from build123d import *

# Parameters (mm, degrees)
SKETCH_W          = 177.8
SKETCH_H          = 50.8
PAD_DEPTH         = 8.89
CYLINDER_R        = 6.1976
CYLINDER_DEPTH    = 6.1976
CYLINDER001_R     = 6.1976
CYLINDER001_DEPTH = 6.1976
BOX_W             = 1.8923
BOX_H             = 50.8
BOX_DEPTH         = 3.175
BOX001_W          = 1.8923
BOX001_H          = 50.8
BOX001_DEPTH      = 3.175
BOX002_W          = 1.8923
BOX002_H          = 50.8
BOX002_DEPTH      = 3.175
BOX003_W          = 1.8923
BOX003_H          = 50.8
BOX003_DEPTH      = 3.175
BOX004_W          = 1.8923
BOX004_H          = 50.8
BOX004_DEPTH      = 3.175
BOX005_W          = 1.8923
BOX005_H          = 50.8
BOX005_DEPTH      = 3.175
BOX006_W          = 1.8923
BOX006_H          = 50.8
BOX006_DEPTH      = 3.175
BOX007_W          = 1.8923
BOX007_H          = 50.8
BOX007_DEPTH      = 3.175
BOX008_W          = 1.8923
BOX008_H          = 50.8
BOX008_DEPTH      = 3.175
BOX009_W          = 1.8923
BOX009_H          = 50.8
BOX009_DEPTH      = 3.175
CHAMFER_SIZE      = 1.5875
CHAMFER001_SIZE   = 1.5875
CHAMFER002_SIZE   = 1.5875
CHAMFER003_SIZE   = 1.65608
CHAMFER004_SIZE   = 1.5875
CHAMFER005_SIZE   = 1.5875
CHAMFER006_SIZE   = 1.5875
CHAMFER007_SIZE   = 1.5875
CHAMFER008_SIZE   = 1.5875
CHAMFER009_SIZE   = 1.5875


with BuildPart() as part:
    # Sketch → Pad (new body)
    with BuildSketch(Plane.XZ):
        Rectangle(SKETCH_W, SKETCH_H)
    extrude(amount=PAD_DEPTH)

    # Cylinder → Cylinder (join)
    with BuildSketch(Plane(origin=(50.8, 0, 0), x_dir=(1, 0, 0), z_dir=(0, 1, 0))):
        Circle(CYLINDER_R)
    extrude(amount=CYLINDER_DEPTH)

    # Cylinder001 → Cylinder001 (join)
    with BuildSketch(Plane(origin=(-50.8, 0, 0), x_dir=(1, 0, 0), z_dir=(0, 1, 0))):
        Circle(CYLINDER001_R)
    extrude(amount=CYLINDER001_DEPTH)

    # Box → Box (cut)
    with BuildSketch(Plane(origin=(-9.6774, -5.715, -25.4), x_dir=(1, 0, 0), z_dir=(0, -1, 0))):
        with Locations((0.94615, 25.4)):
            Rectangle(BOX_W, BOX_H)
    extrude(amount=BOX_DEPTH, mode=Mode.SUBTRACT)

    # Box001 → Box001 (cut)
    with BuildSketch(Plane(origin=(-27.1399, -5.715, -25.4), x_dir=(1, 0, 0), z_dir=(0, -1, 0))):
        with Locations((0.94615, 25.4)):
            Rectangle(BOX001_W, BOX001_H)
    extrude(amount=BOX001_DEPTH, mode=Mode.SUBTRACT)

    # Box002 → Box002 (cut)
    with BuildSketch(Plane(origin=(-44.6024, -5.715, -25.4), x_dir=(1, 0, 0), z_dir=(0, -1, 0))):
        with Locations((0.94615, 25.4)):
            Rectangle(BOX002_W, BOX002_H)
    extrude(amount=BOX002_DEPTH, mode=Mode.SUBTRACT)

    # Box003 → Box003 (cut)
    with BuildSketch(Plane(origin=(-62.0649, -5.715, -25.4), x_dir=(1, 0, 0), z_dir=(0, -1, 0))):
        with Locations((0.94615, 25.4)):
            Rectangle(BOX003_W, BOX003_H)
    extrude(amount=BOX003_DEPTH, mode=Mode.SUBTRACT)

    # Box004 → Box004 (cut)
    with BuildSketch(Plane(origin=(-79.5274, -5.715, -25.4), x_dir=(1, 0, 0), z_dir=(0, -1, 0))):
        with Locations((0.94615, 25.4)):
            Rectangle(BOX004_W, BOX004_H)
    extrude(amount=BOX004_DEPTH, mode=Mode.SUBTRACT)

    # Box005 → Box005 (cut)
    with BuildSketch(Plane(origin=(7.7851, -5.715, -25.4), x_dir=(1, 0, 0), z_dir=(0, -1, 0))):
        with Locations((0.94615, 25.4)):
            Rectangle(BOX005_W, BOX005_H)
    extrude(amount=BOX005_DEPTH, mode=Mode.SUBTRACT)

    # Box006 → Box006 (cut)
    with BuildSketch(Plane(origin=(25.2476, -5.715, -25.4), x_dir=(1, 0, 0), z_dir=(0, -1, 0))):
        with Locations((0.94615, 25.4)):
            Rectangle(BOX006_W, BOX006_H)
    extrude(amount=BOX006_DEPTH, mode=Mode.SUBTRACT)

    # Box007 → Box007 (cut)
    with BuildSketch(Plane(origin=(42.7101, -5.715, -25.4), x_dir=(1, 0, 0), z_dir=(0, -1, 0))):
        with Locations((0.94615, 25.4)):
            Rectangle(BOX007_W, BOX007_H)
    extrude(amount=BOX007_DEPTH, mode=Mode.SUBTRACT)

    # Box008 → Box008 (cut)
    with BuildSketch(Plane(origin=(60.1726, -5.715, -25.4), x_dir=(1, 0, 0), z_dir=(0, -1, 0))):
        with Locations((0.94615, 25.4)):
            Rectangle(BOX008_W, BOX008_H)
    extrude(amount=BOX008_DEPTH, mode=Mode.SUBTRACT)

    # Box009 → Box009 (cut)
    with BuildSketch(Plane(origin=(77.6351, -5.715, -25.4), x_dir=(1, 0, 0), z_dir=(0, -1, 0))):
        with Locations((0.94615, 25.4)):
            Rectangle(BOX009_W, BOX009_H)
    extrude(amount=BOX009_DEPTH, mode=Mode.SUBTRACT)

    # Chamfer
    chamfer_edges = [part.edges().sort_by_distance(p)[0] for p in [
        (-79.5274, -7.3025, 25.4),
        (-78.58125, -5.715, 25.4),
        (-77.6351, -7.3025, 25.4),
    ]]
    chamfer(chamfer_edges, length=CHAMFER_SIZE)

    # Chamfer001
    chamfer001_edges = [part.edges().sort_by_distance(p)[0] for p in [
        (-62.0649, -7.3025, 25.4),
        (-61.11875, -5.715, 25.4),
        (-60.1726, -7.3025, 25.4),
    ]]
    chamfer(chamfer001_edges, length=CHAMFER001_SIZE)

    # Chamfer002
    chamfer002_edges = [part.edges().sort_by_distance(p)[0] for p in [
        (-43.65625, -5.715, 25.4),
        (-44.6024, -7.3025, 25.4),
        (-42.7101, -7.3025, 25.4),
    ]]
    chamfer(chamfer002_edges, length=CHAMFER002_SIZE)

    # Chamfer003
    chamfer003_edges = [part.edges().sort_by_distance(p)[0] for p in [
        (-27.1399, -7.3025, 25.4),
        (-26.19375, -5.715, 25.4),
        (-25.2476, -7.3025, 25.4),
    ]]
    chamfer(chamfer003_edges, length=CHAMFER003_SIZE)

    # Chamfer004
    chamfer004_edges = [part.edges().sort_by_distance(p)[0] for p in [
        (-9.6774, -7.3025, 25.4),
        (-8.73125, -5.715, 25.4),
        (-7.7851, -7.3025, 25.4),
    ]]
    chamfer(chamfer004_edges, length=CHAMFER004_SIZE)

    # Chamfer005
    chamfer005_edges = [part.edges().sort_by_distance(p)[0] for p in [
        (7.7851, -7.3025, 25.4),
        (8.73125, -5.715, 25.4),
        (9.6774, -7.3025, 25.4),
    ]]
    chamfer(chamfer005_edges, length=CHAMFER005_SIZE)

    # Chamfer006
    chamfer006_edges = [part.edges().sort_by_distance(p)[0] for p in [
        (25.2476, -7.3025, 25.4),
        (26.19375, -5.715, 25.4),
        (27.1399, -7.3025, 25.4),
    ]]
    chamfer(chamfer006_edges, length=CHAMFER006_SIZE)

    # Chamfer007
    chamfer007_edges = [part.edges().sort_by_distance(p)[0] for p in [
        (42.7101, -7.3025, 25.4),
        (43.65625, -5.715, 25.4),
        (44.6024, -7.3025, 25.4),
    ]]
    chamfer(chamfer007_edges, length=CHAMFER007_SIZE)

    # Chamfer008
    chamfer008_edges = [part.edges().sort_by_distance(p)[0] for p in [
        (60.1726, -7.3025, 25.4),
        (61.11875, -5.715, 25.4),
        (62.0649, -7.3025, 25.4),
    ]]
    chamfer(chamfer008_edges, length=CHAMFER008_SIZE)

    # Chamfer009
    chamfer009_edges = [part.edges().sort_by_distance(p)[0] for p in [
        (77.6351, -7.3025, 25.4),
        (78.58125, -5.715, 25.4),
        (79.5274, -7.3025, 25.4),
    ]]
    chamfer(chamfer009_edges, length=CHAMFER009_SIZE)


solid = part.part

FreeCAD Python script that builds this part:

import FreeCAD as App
import Part
import Sketcher
from FreeCAD import Vector
Q = App.Units.Quantity


def edges_at(feature, points):
    """Names of the edges that pass closest to the given points."""
    edges = feature.Shape.Edges
    near = lambda p: min(range(len(edges)), key=lambda i: edges[i].distToShape(Part.Vertex(*p))[0])
    return sorted({f"Edge{near(p) + 1}" for p in points})


def add_polygon(sketch, points):
    """Adds a closed chain of lines whose ends are joined by coincident constraints."""
    first, n = sketch.GeometryCount, len(points)
    for a, b in zip(points, points[1:] + points[:1]):
        sketch.addGeometry(Part.LineSegment(App.Vector(*a, 0), App.Vector(*b, 0)), False)
    for i in range(n):
        sketch.addConstraint(Sketcher.Constraint("Coincident", first + i, 2, first + (i + 1) % n, 1))

doc = App.newDocument("Part")
body = doc.addObject("PartDesign::Body", "Body")

sketch1 = body.newObject("Sketcher::SketchObject", "Sketch")
sketch1.AttachmentSupport = (doc.getObject("XZ_Plane"), [""])
sketch1.MapMode = "FlatFace"
add_polygon(sketch1, [(-88.9, 25.4), (-88.9, -25.4), (88.9, -25.4), (88.9, 25.4)])
sketch1.addConstraint(Sketcher.Constraint("Vertical", 0))
sketch1.addConstraint(Sketcher.Constraint("Horizontal", 1))
sketch1.addConstraint(Sketcher.Constraint("Vertical", 2))
sketch1.addConstraint(Sketcher.Constraint("Horizontal", 3))
sketch1.addConstraint(Sketcher.Constraint("Symmetric", 0, 2, 2, 2, -1, 1))
sketch1.addConstraint(Sketcher.Constraint("DistanceX", 1, 1, 1, 2, Q("7 in")))
sketch1.addConstraint(Sketcher.Constraint("DistanceY", 0, 2, 0, 1, Q("2 in")))
pad1 = body.newObject("PartDesign::Pad", "Pad")
pad1.Profile = sketch1
pad1.Length = Q("0.35 in")

sketch2 = body.newObject("Sketcher::SketchObject", "Sketch001")
sketch2.AttachmentSupport = (doc.getObject("XZ_Plane"), [""])
sketch2.MapMode = "FlatFace"
sketch2.addGeometry(Part.Circle(Vector(50.8, 0, 0), Vector(0, 0, 1), 6.1976), False)
sketch2.addConstraint(Sketcher.Constraint("PointOnObject", 0, 3, -1))
sketch2.addConstraint(Sketcher.Constraint("Diameter", 0, Q("0.488 in")))
sketch2.addConstraint(Sketcher.Constraint("DistanceX", -1, 1, 0, 3, Q("2 in")))
pad2 = body.newObject("PartDesign::Pad", "Pad001")
pad2.Profile = sketch2
pad2.Length = Q("0.244 in")
pad2.Reversed = True

sketch3 = body.newObject("Sketcher::SketchObject", "Sketch002")
sketch3.AttachmentSupport = (doc.getObject("XZ_Plane"), [""])
sketch3.MapMode = "FlatFace"
sketch3.addGeometry(Part.Circle(Vector(-50.8, 0, 0), Vector(0, 0, 1), 6.1976), False)
sketch3.addConstraint(Sketcher.Constraint("PointOnObject", 0, 3, -1))
sketch3.addConstraint(Sketcher.Constraint("Diameter", 0, Q("0.488 in")))
sketch3.addConstraint(Sketcher.Constraint("DistanceX", 0, 3, -1, 1, Q("2 in")))
pad3 = body.newObject("PartDesign::Pad", "Pad002")
pad3.Profile = sketch3
pad3.Length = Q("0.244 in")
pad3.Reversed = True

sketch4 = body.newObject("Sketcher::SketchObject", "Sketch003")
sketch4.AttachmentSupport = (doc.getObject("XZ_Plane"), [""])
sketch4.MapMode = "FlatFace"
sketch4.AttachmentOffset = App.Placement(Vector(0, 0, 0.225 * 25.4), App.Rotation())
add_polygon(sketch4, [(-9.6774, 25.4), (-9.6774, -25.4), (-7.7851, -25.4), (-7.7851, 25.4)])
sketch4.addConstraint(Sketcher.Constraint("Vertical", 0))
sketch4.addConstraint(Sketcher.Constraint("Horizontal", 1))
sketch4.addConstraint(Sketcher.Constraint("Vertical", 2))
sketch4.addConstraint(Sketcher.Constraint("Horizontal", 3))
sketch4.addConstraint(Sketcher.Constraint("DistanceY", 0, 2, 0, 1, Q("2 in")))
sketch4.addConstraint(Sketcher.Constraint("DistanceY", 0, 2, -1, 1, Q("1 in")))
sketch4.addConstraint(Sketcher.Constraint("DistanceX", 1, 1, 1, 2, Q("0.0745 in")))
sketch4.addConstraint(Sketcher.Constraint("DistanceX", 0, 2, -1, 1, Q("0.381 in")))
pocket1 = body.newObject("PartDesign::Pocket", "Pocket")
pocket1.Profile = sketch4
pocket1.Length = Q("0.125 in")
pocket1.Reversed = True

sketch5 = body.newObject("Sketcher::SketchObject", "Sketch004")
sketch5.AttachmentSupport = (doc.getObject("XZ_Plane"), [""])
sketch5.MapMode = "FlatFace"
sketch5.AttachmentOffset = App.Placement(Vector(0, 0, 0.225 * 25.4), App.Rotation())
add_polygon(sketch5, [(-27.1399, 25.4), (-27.1399, -25.4), (-25.2476, -25.4), (-25.2476, 25.4)])
sketch5.addConstraint(Sketcher.Constraint("Vertical", 0))
sketch5.addConstraint(Sketcher.Constraint("Horizontal", 1))
sketch5.addConstraint(Sketcher.Constraint("Vertical", 2))
sketch5.addConstraint(Sketcher.Constraint("Horizontal", 3))
sketch5.addConstraint(Sketcher.Constraint("DistanceY", 0, 2, 0, 1, Q("2 in")))
sketch5.addConstraint(Sketcher.Constraint("DistanceY", 0, 2, -1, 1, Q("1 in")))
sketch5.addConstraint(Sketcher.Constraint("DistanceX", 1, 1, 1, 2, Q("0.0745 in")))
sketch5.addConstraint(Sketcher.Constraint("DistanceX", 1, 2, -1, 1, Q("0.994 in")))
pocket2 = body.newObject("PartDesign::Pocket", "Pocket001")
pocket2.Profile = sketch5
pocket2.Length = Q("0.125 in")
pocket2.Reversed = True

sketch6 = body.newObject("Sketcher::SketchObject", "Sketch005")
sketch6.AttachmentSupport = (doc.getObject("XZ_Plane"), [""])
sketch6.MapMode = "FlatFace"
sketch6.AttachmentOffset = App.Placement(Vector(0, 0, 0.225 * 25.4), App.Rotation())
add_polygon(sketch6, [(-44.6024, 25.4), (-44.6024, -25.4), (-42.7101, -25.4), (-42.7101, 25.4)])
sketch6.addConstraint(Sketcher.Constraint("Vertical", 0))
sketch6.addConstraint(Sketcher.Constraint("Horizontal", 1))
sketch6.addConstraint(Sketcher.Constraint("Vertical", 2))
sketch6.addConstraint(Sketcher.Constraint("Horizontal", 3))
sketch6.addConstraint(Sketcher.Constraint("DistanceY", 0, 2, 0, 1, Q("2 in")))
sketch6.addConstraint(Sketcher.Constraint("DistanceY", 0, 2, -1, 1, Q("1 in")))
sketch6.addConstraint(Sketcher.Constraint("DistanceX", 1, 1, 1, 2, Q("0.0745 in")))
sketch6.addConstraint(Sketcher.Constraint("DistanceX", 0, 2, -1, 1, Q("1.756 in")))
pocket3 = body.newObject("PartDesign::Pocket", "Pocket002")
pocket3.Profile = sketch6
pocket3.Length = Q("0.125 in")
pocket3.Reversed = True

sketch7 = body.newObject("Sketcher::SketchObject", "Sketch006")
sketch7.AttachmentSupport = (doc.getObject("XZ_Plane"), [""])
sketch7.MapMode = "FlatFace"
sketch7.AttachmentOffset = App.Placement(Vector(0, 0, 0.225 * 25.4), App.Rotation())
add_polygon(sketch7, [(-62.0649, 25.4), (-62.0649, -25.4), (-60.1726, -25.4), (-60.1726, 25.4)])
sketch7.addConstraint(Sketcher.Constraint("Vertical", 0))
sketch7.addConstraint(Sketcher.Constraint("Horizontal", 1))
sketch7.addConstraint(Sketcher.Constraint("Vertical", 2))
sketch7.addConstraint(Sketcher.Constraint("Horizontal", 3))
sketch7.addConstraint(Sketcher.Constraint("DistanceY", 0, 2, 0, 1, Q("2 in")))
sketch7.addConstraint(Sketcher.Constraint("DistanceY", 0, 2, -1, 1, Q("1 in")))
sketch7.addConstraint(Sketcher.Constraint("DistanceX", 1, 1, 1, 2, Q("0.0745 in")))
sketch7.addConstraint(Sketcher.Constraint("DistanceX", 1, 2, -1, 1, Q("2.369 in")))
pocket4 = body.newObject("PartDesign::Pocket", "Pocket003")
pocket4.Profile = sketch7
pocket4.Length = Q("0.125 in")
pocket4.Reversed = True

sketch8 = body.newObject("Sketcher::SketchObject", "Sketch007")
sketch8.AttachmentSupport = (doc.getObject("XZ_Plane"), [""])
sketch8.MapMode = "FlatFace"
sketch8.AttachmentOffset = App.Placement(Vector(0, 0, 0.225 * 25.4), App.Rotation())
add_polygon(sketch8, [(-79.5274, 25.4), (-79.5274, -25.4), (-77.6351, -25.4), (-77.6351, 25.4)])
sketch8.addConstraint(Sketcher.Constraint("Vertical", 0))
sketch8.addConstraint(Sketcher.Constraint("Horizontal", 1))
sketch8.addConstraint(Sketcher.Constraint("Vertical", 2))
sketch8.addConstraint(Sketcher.Constraint("Horizontal", 3))
sketch8.addConstraint(Sketcher.Constraint("DistanceY", 0, 2, 0, 1, Q("2 in")))
sketch8.addConstraint(Sketcher.Constraint("DistanceY", 0, 2, -1, 1, Q("1 in")))
sketch8.addConstraint(Sketcher.Constraint("DistanceX", 1, 1, 1, 2, Q("0.0745 in")))
sketch8.addConstraint(Sketcher.Constraint("DistanceX", 0, 2, -1, 1, Q("3.131 in")))
pocket5 = body.newObject("PartDesign::Pocket", "Pocket004")
pocket5.Profile = sketch8
pocket5.Length = Q("0.125 in")
pocket5.Reversed = True

sketch9 = body.newObject("Sketcher::SketchObject", "Sketch008")
sketch9.AttachmentSupport = (doc.getObject("XZ_Plane"), [""])
sketch9.MapMode = "FlatFace"
sketch9.AttachmentOffset = App.Placement(Vector(0, 0, 0.225 * 25.4), App.Rotation())
add_polygon(sketch9, [(7.7851, 25.4), (7.7851, -25.4), (9.6774, -25.4), (9.6774, 25.4)])
sketch9.addConstraint(Sketcher.Constraint("Vertical", 0))
sketch9.addConstraint(Sketcher.Constraint("Horizontal", 1))
sketch9.addConstraint(Sketcher.Constraint("Vertical", 2))
sketch9.addConstraint(Sketcher.Constraint("Horizontal", 3))
sketch9.addConstraint(Sketcher.Constraint("DistanceY", 0, 2, 0, 1, Q("2 in")))
sketch9.addConstraint(Sketcher.Constraint("DistanceY", 0, 2, -1, 1, Q("1 in")))
sketch9.addConstraint(Sketcher.Constraint("DistanceX", 1, 1, 1, 2, Q("0.0745 in")))
sketch9.addConstraint(Sketcher.Constraint("DistanceX", -1, 1, 1, 2, Q("0.381 in")))
pocket6 = body.newObject("PartDesign::Pocket", "Pocket005")
pocket6.Profile = sketch9
pocket6.Length = Q("0.125 in")
pocket6.Reversed = True

sketch10 = body.newObject("Sketcher::SketchObject", "Sketch009")
sketch10.AttachmentSupport = (doc.getObject("XZ_Plane"), [""])
sketch10.MapMode = "FlatFace"
sketch10.AttachmentOffset = App.Placement(Vector(0, 0, 0.225 * 25.4), App.Rotation())
add_polygon(sketch10, [(25.2476, 25.4), (25.2476, -25.4), (27.1399, -25.4), (27.1399, 25.4)])
sketch10.addConstraint(Sketcher.Constraint("Vertical", 0))
sketch10.addConstraint(Sketcher.Constraint("Horizontal", 1))
sketch10.addConstraint(Sketcher.Constraint("Vertical", 2))
sketch10.addConstraint(Sketcher.Constraint("Horizontal", 3))
sketch10.addConstraint(Sketcher.Constraint("DistanceY", 0, 2, 0, 1, Q("2 in")))
sketch10.addConstraint(Sketcher.Constraint("DistanceY", 0, 2, -1, 1, Q("1 in")))
sketch10.addConstraint(Sketcher.Constraint("DistanceX", 1, 1, 1, 2, Q("0.0745 in")))
sketch10.addConstraint(Sketcher.Constraint("DistanceX", -1, 1, 0, 2, Q("0.994 in")))
pocket7 = body.newObject("PartDesign::Pocket", "Pocket006")
pocket7.Profile = sketch10
pocket7.Length = Q("0.125 in")
pocket7.Reversed = True

sketch11 = body.newObject("Sketcher::SketchObject", "Sketch010")
sketch11.AttachmentSupport = (doc.getObject("XZ_Plane"), [""])
sketch11.MapMode = "FlatFace"
sketch11.AttachmentOffset = App.Placement(Vector(0, 0, 0.225 * 25.4), App.Rotation())
add_polygon(sketch11, [(42.7101, 25.4), (42.7101, -25.4), (44.6024, -25.4), (44.6024, 25.4)])
sketch11.addConstraint(Sketcher.Constraint("Vertical", 0))
sketch11.addConstraint(Sketcher.Constraint("Horizontal", 1))
sketch11.addConstraint(Sketcher.Constraint("Vertical", 2))
sketch11.addConstraint(Sketcher.Constraint("Horizontal", 3))
sketch11.addConstraint(Sketcher.Constraint("DistanceY", 0, 2, 0, 1, Q("2 in")))
sketch11.addConstraint(Sketcher.Constraint("DistanceY", 0, 2, -1, 1, Q("1 in")))
sketch11.addConstraint(Sketcher.Constraint("DistanceX", 1, 1, 1, 2, Q("0.0745 in")))
sketch11.addConstraint(Sketcher.Constraint("DistanceX", -1, 1, 1, 2, Q("1.756 in")))
pocket8 = body.newObject("PartDesign::Pocket", "Pocket007")
pocket8.Profile = sketch11
pocket8.Length = Q("0.125 in")
pocket8.Reversed = True

sketch12 = body.newObject("Sketcher::SketchObject", "Sketch011")
sketch12.AttachmentSupport = (doc.getObject("XZ_Plane"), [""])
sketch12.MapMode = "FlatFace"
sketch12.AttachmentOffset = App.Placement(Vector(0, 0, 0.225 * 25.4), App.Rotation())
add_polygon(sketch12, [(60.1726, 25.4), (60.1726, -25.4), (62.0649, -25.4), (62.0649, 25.4)])
sketch12.addConstraint(Sketcher.Constraint("Vertical", 0))
sketch12.addConstraint(Sketcher.Constraint("Horizontal", 1))
sketch12.addConstraint(Sketcher.Constraint("Vertical", 2))
sketch12.addConstraint(Sketcher.Constraint("Horizontal", 3))
sketch12.addConstraint(Sketcher.Constraint("DistanceY", 0, 2, 0, 1, Q("2 in")))
sketch12.addConstraint(Sketcher.Constraint("DistanceY", 0, 2, -1, 1, Q("1 in")))
sketch12.addConstraint(Sketcher.Constraint("DistanceX", 1, 1, 1, 2, Q("0.0745 in")))
sketch12.addConstraint(Sketcher.Constraint("DistanceX", -1, 1, 0, 2, Q("2.369 in")))
pocket9 = body.newObject("PartDesign::Pocket", "Pocket008")
pocket9.Profile = sketch12
pocket9.Length = Q("0.125 in")
pocket9.Reversed = True

sketch13 = body.newObject("Sketcher::SketchObject", "Sketch012")
sketch13.AttachmentSupport = (doc.getObject("XZ_Plane"), [""])
sketch13.MapMode = "FlatFace"
sketch13.AttachmentOffset = App.Placement(Vector(0, 0, 0.225 * 25.4), App.Rotation())
add_polygon(sketch13, [(77.6351, 25.4), (77.6351, -25.4), (79.5274, -25.4), (79.5274, 25.4)])
sketch13.addConstraint(Sketcher.Constraint("Vertical", 0))
sketch13.addConstraint(Sketcher.Constraint("Horizontal", 1))
sketch13.addConstraint(Sketcher.Constraint("Vertical", 2))
sketch13.addConstraint(Sketcher.Constraint("Horizontal", 3))
sketch13.addConstraint(Sketcher.Constraint("DistanceY", 0, 2, 0, 1, Q("2 in")))
sketch13.addConstraint(Sketcher.Constraint("DistanceY", 0, 2, -1, 1, Q("1 in")))
sketch13.addConstraint(Sketcher.Constraint("DistanceX", 1, 1, 1, 2, Q("0.0745 in")))
sketch13.addConstraint(Sketcher.Constraint("DistanceX", -1, 1, 1, 2, Q("3.131 in")))
pocket10 = body.newObject("PartDesign::Pocket", "Pocket009")
pocket10.Profile = sketch13
pocket10.Length = Q("0.125 in")
pocket10.Reversed = True
doc.recompute()

chamfer = body.newObject("PartDesign::Chamfer", "Chamfer")
chamfer.Base = (pocket10, edges_at(pocket10, [(-79.527, -7.303, 25.4), (-78.581, -5.715, 25.4), (-77.635, -7.303, 25.4)]))
chamfer.Size = Q("0.0625 in")
doc.recompute()

chamfer2 = body.newObject("PartDesign::Chamfer", "Chamfer001")
chamfer2.Base = (chamfer, edges_at(chamfer, [(-62.065, -7.303, 25.4), (-61.119, -5.715, 25.4), (-60.173, -7.303, 25.4)]))
chamfer2.Size = Q("0.0625 in")
doc.recompute()

chamfer3 = body.newObject("PartDesign::Chamfer", "Chamfer002")
chamfer3.Base = (chamfer2, edges_at(chamfer2, [(-43.656, -5.715, 25.4), (-44.602, -7.303, 25.4), (-42.71, -7.303, 25.4)]))
chamfer3.Size = Q("0.0625 in")
doc.recompute()

chamfer4 = body.newObject("PartDesign::Chamfer", "Chamfer003")
chamfer4.Base = (chamfer3, edges_at(chamfer3, [(-27.14, -7.303, 25.4), (-26.194, -5.715, 25.4), (-25.248, -7.303, 25.4)]))
chamfer4.Size = Q("0.0652 in")
doc.recompute()

chamfer5 = body.newObject("PartDesign::Chamfer", "Chamfer004")
chamfer5.Base = (chamfer4, edges_at(chamfer4, [(-9.677, -7.303, 25.4), (-8.731, -5.715, 25.4), (-7.785, -7.303, 25.4)]))
chamfer5.Size = Q("0.0625 in")
doc.recompute()

chamfer6 = body.newObject("PartDesign::Chamfer", "Chamfer005")
chamfer6.Base = (chamfer5, edges_at(chamfer5, [(7.785, -7.303, 25.4), (8.731, -5.715, 25.4), (9.677, -7.303, 25.4)]))
chamfer6.Size = Q("0.0625 in")
doc.recompute()

chamfer7 = body.newObject("PartDesign::Chamfer", "Chamfer006")
chamfer7.Base = (chamfer6, edges_at(chamfer6, [(25.248, -7.303, 25.4), (26.194, -5.715, 25.4), (27.14, -7.303, 25.4)]))
chamfer7.Size = Q("0.0625 in")
doc.recompute()

chamfer8 = body.newObject("PartDesign::Chamfer", "Chamfer007")
chamfer8.Base = (chamfer7, edges_at(chamfer7, [(42.71, -7.303, 25.4), (43.656, -5.715, 25.4), (44.602, -7.303, 25.4)]))
chamfer8.Size = Q("0.0625 in")
doc.recompute()

chamfer9 = body.newObject("PartDesign::Chamfer", "Chamfer008")
chamfer9.Base = (chamfer8, edges_at(chamfer8, [(60.173, -7.303, 25.4), (61.119, -5.715, 25.4), (62.065, -7.303, 25.4)]))
chamfer9.Size = Q("0.0625 in")
doc.recompute()

chamfer10 = body.newObject("PartDesign::Chamfer", "Chamfer009")
chamfer10.Base = (chamfer9, edges_at(chamfer9, [(77.635, -7.303, 25.4), (78.581, -5.715, 25.4), (79.527, -7.303, 25.4)]))
chamfer10.Size = Q("0.0625 in")

doc.recompute()
